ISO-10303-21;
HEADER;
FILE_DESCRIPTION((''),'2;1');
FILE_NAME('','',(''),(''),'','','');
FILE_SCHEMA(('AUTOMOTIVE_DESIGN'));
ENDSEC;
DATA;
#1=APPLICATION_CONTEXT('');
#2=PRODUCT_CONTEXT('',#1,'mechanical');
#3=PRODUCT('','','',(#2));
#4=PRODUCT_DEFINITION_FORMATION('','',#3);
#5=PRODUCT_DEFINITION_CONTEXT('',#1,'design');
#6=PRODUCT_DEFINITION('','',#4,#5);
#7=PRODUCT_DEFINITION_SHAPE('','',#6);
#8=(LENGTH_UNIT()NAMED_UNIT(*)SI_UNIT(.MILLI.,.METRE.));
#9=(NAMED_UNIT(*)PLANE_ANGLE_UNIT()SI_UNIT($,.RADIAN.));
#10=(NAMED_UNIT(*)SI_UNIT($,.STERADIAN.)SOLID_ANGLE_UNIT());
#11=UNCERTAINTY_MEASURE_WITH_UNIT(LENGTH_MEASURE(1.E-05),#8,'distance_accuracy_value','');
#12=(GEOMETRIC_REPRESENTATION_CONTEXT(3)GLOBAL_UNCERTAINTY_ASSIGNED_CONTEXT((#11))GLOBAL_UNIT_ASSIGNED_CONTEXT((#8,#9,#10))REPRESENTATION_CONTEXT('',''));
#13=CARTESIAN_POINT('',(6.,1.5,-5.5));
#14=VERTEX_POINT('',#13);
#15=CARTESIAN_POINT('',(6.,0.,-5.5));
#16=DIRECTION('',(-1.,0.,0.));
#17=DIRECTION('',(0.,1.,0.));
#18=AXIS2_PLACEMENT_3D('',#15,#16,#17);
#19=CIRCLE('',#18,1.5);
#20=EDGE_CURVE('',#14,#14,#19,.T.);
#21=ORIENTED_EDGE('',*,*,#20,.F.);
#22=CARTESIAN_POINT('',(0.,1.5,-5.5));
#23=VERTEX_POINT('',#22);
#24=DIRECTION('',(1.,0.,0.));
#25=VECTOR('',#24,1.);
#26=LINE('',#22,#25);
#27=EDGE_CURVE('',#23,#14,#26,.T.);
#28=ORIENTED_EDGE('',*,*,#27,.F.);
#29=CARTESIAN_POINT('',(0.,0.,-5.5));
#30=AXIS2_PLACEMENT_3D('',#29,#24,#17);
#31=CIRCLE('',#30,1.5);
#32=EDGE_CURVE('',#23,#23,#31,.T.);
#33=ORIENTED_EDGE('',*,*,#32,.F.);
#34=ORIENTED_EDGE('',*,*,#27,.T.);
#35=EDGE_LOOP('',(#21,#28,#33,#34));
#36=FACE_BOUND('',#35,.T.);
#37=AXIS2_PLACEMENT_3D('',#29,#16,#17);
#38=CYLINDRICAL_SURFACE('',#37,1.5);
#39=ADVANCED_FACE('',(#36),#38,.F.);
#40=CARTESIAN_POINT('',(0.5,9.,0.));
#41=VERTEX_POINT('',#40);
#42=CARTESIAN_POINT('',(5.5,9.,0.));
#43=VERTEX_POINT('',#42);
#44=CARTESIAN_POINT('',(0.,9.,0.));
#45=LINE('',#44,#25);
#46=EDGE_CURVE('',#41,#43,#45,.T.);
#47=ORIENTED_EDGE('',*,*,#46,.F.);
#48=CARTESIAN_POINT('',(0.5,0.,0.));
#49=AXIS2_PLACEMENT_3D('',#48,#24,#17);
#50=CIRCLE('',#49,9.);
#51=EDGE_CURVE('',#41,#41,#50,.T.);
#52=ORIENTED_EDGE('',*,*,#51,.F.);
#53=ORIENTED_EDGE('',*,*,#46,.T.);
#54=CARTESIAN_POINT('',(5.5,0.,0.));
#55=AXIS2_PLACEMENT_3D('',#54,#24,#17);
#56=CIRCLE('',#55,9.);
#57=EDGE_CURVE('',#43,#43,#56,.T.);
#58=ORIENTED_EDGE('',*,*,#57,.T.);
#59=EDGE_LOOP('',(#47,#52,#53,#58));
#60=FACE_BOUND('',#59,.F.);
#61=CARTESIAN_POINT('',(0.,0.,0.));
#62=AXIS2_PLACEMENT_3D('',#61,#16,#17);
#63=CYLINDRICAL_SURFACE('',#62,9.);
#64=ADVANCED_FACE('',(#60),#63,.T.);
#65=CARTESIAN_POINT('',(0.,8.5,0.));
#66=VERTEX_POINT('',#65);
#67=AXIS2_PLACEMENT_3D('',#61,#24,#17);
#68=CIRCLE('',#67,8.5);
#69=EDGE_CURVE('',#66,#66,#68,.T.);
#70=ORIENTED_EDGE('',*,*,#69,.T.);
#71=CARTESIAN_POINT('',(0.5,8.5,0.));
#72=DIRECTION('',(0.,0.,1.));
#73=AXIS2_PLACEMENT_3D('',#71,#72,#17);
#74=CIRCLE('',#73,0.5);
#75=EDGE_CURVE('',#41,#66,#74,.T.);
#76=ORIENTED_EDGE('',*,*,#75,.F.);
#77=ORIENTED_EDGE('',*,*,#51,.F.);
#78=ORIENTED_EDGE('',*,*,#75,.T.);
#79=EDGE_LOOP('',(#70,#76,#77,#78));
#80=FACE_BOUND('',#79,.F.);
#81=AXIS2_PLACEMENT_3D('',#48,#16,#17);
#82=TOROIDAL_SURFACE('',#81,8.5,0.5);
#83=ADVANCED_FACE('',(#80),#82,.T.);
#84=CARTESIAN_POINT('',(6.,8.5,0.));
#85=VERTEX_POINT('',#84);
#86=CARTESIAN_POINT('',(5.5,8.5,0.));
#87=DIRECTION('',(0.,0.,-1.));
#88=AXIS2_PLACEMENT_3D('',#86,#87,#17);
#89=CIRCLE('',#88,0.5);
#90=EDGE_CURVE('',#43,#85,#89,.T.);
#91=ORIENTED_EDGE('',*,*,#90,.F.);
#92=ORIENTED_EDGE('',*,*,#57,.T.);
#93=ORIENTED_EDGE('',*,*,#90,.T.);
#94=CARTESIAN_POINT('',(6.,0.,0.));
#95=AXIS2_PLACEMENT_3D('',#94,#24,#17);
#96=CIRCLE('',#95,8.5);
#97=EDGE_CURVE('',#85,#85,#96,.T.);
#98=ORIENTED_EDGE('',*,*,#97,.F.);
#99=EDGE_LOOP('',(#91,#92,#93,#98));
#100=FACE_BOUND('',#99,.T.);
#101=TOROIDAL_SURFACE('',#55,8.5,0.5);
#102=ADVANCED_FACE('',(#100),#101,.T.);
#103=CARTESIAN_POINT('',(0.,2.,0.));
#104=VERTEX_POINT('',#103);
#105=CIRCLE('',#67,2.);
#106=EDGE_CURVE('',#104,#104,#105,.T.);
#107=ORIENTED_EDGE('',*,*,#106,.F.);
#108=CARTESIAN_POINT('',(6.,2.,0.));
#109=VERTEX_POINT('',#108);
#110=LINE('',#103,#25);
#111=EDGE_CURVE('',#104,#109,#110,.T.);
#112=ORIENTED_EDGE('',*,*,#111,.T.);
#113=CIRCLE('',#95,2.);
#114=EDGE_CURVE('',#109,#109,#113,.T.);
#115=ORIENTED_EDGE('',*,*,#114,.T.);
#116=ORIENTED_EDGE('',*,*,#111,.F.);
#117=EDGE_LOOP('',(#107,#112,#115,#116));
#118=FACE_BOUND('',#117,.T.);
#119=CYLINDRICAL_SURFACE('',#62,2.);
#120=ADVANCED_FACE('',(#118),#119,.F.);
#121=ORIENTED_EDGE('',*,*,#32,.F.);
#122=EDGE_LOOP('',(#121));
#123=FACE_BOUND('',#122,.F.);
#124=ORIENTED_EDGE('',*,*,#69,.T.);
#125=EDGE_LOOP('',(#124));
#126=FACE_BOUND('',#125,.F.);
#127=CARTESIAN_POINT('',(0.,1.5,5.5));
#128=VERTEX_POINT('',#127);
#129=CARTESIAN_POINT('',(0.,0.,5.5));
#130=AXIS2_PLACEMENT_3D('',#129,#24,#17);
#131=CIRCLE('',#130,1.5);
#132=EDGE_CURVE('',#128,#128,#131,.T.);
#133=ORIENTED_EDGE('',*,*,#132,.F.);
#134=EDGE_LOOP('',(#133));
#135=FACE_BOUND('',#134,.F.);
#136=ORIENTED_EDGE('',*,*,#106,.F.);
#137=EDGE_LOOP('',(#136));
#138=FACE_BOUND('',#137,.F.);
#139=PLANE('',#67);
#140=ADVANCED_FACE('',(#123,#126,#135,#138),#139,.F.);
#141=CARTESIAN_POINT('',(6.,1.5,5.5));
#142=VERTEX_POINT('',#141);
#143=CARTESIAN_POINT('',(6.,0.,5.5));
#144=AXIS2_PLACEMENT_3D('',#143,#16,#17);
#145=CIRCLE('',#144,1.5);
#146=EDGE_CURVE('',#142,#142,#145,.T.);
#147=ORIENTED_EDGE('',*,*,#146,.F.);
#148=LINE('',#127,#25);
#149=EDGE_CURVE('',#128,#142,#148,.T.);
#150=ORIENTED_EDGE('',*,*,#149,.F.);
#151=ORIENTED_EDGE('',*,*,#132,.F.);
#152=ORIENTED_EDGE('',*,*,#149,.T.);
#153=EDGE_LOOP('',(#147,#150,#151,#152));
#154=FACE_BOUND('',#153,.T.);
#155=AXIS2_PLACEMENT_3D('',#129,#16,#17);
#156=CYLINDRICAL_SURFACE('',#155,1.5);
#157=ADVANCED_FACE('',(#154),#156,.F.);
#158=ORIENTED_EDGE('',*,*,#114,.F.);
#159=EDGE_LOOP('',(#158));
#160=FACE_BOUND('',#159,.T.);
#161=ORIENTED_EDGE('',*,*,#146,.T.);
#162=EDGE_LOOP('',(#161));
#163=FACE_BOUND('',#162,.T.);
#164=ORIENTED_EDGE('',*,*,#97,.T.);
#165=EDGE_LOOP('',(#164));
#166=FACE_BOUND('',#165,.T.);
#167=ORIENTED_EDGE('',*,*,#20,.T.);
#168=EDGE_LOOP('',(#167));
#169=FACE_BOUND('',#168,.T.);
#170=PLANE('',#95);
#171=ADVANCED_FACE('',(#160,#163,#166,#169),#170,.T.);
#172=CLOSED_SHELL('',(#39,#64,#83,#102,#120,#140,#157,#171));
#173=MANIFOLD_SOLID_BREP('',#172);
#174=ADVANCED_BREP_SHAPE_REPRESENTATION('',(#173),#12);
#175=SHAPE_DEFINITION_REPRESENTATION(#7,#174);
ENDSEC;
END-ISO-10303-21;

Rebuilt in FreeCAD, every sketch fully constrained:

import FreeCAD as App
import Part
import Sketcher

V = App.Vector


def edges_at(feature, points):
    """Names of the edges that pass closest to the given points."""
    edges = feature.Shape.Edges
    near = lambda p: min(range(len(edges)), key=lambda i: edges[i].distToShape(Part.Vertex(*p))[0])
    return sorted({f"Edge{near(p) + 1}" for p in points})

doc = App.newDocument("Part")
body = doc.addObject("PartDesign::Body", "Body")

sketch1 = body.newObject("Sketcher::SketchObject", "Sketch")
sketch1.AttachmentSupport = (doc.getObject("YZ_Plane"), [""])
sketch1.MapMode = "FlatFace"
sketch1.addGeometry(Part.Circle(V(0, 0, 0), V(0, 0, 1), 9), False)
sketch1.addGeometry(Part.Circle(V(0, 5.5, 0), V(0, 0, 1), 1.5), False)
sketch1.addGeometry(Part.Circle(V(0, -5.5, 0), V(0, 0, 1), 1.5), False)
sketch1.addGeometry(Part.Circle(V(0, 0, 0), V(0, 0, 1), 2), False)
sketch1.addConstraint(Sketcher.Constraint("Coincident", 0, 3, -1, 1))
sketch1.addConstraint(Sketcher.Constraint("Coincident", 3, 3, -1, 1))
sketch1.addConstraint(Sketcher.Constraint("Equal", 1, 2))
sketch1.addConstraint(Sketcher.Constraint("Symmetric", 1, 3, 2, 3, -1, 1))
sketch1.addConstraint(Sketcher.Constraint("PointOnObject", 1, 3, -2))
sketch1.addConstraint(Sketcher.Constraint("Diameter", 0, 18.0))
sketch1.addConstraint(Sketcher.Constraint("Diameter", 1, 3.0))
sketch1.addConstraint(Sketcher.Constraint("Diameter", 3, 4.0))
sketch1.addConstraint(Sketcher.Constraint("DistanceY", 2, 3, 1, 3, 11.0))
pad1 = body.newObject("PartDesign::Pad", "Pad")
pad1.Profile = sketch1
pad1.Length = 6
doc.recompute()

fillet = body.newObject("PartDesign::Fillet", "Fillet")
fillet.Base = (pad1, edges_at(pad1, [(6, -9, 0), (0, -9, 0)]))
fillet.Radius = 0.5

doc.recompute()
